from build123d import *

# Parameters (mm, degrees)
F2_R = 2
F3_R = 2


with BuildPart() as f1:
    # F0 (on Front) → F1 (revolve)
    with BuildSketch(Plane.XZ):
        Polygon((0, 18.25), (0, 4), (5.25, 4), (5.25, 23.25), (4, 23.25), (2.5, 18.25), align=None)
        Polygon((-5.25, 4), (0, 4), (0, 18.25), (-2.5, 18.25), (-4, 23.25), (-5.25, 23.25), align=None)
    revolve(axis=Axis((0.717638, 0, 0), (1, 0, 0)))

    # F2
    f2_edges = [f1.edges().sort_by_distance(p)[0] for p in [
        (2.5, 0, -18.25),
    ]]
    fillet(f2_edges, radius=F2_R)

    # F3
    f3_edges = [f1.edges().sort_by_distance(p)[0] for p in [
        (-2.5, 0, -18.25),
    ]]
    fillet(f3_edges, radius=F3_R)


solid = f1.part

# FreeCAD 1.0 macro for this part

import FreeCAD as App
import Part
import Sketcher
from FreeCAD import Vector
Q = App.Units.Quantity


def edges_at(feature, points):
    """Names of the edges that pass closest to the given points."""
    edges = feature.Shape.Edges
    near = lambda p: min(range(len(edges)), key=lambda i: edges[i].distToShape(Part.Vertex(*p))[0])
    return sorted({f"Edge{near(p) + 1}" for p in points})

doc = App.newDocument("Part")
body = doc.addObject("PartDesign::Body", "Body")

sketch1 = body.newObject("Sketcher::SketchObject", "Sketch")
sketch1.AttachmentSupport = (doc.getObject("XZ_Plane"), [""])
sketch1.MapMode = "FlatFace"
sketch1.addGeometry([
    Part.LineSegment(Vector(5.2, 4, 0), Vector(5.2, 23.2, 0)),
    Part.LineSegment(Vector(5.2, 23.2, 0), Vector(4, 23.2, 0)),
    Part.LineSegment(Vector(4, 23.2, 0), Vector(2.5, 18.2, 0)),
    Part.LineSegment(Vector(2.5, 18.2, 0), Vector(-2.5, 18.2, 0)),
    Part.LineSegment(Vector(-2.5, 18.2, 0), Vector(-4, 23.2, 0)),
    Part.LineSegment(Vector(-4, 23.2, 0), Vector(-5.2, 23.2, 0)),
    Part.LineSegment(Vector(-5.2, 23.2, 0), Vector(-5.2, 4, 0)),
    Part.LineSegment(Vector(-5.2, 4, 0), Vector(5.2, 4, 0)),
], False)
sketch1.addConstraint([
    Sketcher.Constraint("Coincident", 0, 2, 1, 1),
    Sketcher.Constraint("Coincident", 1, 2, 2, 1),
    Sketcher.Constraint("Coincident", 2, 2, 3, 1),
    Sketcher.Constraint("Coincident", 3, 2, 4, 1),
    Sketcher.Constraint("Coincident", 4, 2, 5, 1),
    Sketcher.Constraint("Coincident", 5, 2, 6, 1),
    Sketcher.Constraint("Coincident", 6, 2, 7, 1),
    Sketcher.Constraint("Coincident", 7, 2, 0, 1),
    Sketcher.Constraint("Vertical", 0),
    Sketcher.Constraint("Horizontal", 1),
    Sketcher.Constraint("Horizontal", 3),
    Sketcher.Constraint("Horizontal", 5),
    Sketcher.Constraint("Vertical", 6),
    Sketcher.Constraint("Horizontal", 7),
    Sketcher.Constraint("Symmetric", 1, 2, 4, 2, -2),
    Sketcher.Constraint("Equal", 1, 5),
    Sketcher.Constraint("Equal", 2, 4),
    Sketcher.Constraint("DistanceX", 3, 2, 3, 1, Q("5 mm")),
    Sketcher.Constraint("DistanceX", 7, 1, 7, 2, Q("10.5 mm")),
    Sketcher.Constraint("DistanceX", -1, 1, 1, 2, Q("4 mm")),
    Sketcher.Constraint("DistanceY", -1, 1, 6, 2, Q("4 mm")),
    Sketcher.Constraint("DistanceY", 2, 2, 1, 2, Q("5 mm")),
    Sketcher.Constraint("DistanceY", 0, 1, 0, 2, Q("19.25 mm")),
])
revolution = body.newObject("PartDesign::Revolution", "Revolution")
revolution.Profile = sketch1
revolution.ReferenceAxis = (sketch1, ["H_Axis"])
revolution.Angle = 360
doc.recompute()

fillet = body.newObject("PartDesign::Fillet", "Fillet")
fillet.Base = (revolution, edges_at(revolution, [(2.5, 0, -18.25)]))
fillet.Radius = 2
doc.recompute()

fillet2 = body.newObject("PartDesign::Fillet", "Fillet001")
fillet2.Base = (fillet, edges_at(fillet, [(-2.5, 0, -18.25)]))
fillet2.Radius = 2

doc.recompute()
